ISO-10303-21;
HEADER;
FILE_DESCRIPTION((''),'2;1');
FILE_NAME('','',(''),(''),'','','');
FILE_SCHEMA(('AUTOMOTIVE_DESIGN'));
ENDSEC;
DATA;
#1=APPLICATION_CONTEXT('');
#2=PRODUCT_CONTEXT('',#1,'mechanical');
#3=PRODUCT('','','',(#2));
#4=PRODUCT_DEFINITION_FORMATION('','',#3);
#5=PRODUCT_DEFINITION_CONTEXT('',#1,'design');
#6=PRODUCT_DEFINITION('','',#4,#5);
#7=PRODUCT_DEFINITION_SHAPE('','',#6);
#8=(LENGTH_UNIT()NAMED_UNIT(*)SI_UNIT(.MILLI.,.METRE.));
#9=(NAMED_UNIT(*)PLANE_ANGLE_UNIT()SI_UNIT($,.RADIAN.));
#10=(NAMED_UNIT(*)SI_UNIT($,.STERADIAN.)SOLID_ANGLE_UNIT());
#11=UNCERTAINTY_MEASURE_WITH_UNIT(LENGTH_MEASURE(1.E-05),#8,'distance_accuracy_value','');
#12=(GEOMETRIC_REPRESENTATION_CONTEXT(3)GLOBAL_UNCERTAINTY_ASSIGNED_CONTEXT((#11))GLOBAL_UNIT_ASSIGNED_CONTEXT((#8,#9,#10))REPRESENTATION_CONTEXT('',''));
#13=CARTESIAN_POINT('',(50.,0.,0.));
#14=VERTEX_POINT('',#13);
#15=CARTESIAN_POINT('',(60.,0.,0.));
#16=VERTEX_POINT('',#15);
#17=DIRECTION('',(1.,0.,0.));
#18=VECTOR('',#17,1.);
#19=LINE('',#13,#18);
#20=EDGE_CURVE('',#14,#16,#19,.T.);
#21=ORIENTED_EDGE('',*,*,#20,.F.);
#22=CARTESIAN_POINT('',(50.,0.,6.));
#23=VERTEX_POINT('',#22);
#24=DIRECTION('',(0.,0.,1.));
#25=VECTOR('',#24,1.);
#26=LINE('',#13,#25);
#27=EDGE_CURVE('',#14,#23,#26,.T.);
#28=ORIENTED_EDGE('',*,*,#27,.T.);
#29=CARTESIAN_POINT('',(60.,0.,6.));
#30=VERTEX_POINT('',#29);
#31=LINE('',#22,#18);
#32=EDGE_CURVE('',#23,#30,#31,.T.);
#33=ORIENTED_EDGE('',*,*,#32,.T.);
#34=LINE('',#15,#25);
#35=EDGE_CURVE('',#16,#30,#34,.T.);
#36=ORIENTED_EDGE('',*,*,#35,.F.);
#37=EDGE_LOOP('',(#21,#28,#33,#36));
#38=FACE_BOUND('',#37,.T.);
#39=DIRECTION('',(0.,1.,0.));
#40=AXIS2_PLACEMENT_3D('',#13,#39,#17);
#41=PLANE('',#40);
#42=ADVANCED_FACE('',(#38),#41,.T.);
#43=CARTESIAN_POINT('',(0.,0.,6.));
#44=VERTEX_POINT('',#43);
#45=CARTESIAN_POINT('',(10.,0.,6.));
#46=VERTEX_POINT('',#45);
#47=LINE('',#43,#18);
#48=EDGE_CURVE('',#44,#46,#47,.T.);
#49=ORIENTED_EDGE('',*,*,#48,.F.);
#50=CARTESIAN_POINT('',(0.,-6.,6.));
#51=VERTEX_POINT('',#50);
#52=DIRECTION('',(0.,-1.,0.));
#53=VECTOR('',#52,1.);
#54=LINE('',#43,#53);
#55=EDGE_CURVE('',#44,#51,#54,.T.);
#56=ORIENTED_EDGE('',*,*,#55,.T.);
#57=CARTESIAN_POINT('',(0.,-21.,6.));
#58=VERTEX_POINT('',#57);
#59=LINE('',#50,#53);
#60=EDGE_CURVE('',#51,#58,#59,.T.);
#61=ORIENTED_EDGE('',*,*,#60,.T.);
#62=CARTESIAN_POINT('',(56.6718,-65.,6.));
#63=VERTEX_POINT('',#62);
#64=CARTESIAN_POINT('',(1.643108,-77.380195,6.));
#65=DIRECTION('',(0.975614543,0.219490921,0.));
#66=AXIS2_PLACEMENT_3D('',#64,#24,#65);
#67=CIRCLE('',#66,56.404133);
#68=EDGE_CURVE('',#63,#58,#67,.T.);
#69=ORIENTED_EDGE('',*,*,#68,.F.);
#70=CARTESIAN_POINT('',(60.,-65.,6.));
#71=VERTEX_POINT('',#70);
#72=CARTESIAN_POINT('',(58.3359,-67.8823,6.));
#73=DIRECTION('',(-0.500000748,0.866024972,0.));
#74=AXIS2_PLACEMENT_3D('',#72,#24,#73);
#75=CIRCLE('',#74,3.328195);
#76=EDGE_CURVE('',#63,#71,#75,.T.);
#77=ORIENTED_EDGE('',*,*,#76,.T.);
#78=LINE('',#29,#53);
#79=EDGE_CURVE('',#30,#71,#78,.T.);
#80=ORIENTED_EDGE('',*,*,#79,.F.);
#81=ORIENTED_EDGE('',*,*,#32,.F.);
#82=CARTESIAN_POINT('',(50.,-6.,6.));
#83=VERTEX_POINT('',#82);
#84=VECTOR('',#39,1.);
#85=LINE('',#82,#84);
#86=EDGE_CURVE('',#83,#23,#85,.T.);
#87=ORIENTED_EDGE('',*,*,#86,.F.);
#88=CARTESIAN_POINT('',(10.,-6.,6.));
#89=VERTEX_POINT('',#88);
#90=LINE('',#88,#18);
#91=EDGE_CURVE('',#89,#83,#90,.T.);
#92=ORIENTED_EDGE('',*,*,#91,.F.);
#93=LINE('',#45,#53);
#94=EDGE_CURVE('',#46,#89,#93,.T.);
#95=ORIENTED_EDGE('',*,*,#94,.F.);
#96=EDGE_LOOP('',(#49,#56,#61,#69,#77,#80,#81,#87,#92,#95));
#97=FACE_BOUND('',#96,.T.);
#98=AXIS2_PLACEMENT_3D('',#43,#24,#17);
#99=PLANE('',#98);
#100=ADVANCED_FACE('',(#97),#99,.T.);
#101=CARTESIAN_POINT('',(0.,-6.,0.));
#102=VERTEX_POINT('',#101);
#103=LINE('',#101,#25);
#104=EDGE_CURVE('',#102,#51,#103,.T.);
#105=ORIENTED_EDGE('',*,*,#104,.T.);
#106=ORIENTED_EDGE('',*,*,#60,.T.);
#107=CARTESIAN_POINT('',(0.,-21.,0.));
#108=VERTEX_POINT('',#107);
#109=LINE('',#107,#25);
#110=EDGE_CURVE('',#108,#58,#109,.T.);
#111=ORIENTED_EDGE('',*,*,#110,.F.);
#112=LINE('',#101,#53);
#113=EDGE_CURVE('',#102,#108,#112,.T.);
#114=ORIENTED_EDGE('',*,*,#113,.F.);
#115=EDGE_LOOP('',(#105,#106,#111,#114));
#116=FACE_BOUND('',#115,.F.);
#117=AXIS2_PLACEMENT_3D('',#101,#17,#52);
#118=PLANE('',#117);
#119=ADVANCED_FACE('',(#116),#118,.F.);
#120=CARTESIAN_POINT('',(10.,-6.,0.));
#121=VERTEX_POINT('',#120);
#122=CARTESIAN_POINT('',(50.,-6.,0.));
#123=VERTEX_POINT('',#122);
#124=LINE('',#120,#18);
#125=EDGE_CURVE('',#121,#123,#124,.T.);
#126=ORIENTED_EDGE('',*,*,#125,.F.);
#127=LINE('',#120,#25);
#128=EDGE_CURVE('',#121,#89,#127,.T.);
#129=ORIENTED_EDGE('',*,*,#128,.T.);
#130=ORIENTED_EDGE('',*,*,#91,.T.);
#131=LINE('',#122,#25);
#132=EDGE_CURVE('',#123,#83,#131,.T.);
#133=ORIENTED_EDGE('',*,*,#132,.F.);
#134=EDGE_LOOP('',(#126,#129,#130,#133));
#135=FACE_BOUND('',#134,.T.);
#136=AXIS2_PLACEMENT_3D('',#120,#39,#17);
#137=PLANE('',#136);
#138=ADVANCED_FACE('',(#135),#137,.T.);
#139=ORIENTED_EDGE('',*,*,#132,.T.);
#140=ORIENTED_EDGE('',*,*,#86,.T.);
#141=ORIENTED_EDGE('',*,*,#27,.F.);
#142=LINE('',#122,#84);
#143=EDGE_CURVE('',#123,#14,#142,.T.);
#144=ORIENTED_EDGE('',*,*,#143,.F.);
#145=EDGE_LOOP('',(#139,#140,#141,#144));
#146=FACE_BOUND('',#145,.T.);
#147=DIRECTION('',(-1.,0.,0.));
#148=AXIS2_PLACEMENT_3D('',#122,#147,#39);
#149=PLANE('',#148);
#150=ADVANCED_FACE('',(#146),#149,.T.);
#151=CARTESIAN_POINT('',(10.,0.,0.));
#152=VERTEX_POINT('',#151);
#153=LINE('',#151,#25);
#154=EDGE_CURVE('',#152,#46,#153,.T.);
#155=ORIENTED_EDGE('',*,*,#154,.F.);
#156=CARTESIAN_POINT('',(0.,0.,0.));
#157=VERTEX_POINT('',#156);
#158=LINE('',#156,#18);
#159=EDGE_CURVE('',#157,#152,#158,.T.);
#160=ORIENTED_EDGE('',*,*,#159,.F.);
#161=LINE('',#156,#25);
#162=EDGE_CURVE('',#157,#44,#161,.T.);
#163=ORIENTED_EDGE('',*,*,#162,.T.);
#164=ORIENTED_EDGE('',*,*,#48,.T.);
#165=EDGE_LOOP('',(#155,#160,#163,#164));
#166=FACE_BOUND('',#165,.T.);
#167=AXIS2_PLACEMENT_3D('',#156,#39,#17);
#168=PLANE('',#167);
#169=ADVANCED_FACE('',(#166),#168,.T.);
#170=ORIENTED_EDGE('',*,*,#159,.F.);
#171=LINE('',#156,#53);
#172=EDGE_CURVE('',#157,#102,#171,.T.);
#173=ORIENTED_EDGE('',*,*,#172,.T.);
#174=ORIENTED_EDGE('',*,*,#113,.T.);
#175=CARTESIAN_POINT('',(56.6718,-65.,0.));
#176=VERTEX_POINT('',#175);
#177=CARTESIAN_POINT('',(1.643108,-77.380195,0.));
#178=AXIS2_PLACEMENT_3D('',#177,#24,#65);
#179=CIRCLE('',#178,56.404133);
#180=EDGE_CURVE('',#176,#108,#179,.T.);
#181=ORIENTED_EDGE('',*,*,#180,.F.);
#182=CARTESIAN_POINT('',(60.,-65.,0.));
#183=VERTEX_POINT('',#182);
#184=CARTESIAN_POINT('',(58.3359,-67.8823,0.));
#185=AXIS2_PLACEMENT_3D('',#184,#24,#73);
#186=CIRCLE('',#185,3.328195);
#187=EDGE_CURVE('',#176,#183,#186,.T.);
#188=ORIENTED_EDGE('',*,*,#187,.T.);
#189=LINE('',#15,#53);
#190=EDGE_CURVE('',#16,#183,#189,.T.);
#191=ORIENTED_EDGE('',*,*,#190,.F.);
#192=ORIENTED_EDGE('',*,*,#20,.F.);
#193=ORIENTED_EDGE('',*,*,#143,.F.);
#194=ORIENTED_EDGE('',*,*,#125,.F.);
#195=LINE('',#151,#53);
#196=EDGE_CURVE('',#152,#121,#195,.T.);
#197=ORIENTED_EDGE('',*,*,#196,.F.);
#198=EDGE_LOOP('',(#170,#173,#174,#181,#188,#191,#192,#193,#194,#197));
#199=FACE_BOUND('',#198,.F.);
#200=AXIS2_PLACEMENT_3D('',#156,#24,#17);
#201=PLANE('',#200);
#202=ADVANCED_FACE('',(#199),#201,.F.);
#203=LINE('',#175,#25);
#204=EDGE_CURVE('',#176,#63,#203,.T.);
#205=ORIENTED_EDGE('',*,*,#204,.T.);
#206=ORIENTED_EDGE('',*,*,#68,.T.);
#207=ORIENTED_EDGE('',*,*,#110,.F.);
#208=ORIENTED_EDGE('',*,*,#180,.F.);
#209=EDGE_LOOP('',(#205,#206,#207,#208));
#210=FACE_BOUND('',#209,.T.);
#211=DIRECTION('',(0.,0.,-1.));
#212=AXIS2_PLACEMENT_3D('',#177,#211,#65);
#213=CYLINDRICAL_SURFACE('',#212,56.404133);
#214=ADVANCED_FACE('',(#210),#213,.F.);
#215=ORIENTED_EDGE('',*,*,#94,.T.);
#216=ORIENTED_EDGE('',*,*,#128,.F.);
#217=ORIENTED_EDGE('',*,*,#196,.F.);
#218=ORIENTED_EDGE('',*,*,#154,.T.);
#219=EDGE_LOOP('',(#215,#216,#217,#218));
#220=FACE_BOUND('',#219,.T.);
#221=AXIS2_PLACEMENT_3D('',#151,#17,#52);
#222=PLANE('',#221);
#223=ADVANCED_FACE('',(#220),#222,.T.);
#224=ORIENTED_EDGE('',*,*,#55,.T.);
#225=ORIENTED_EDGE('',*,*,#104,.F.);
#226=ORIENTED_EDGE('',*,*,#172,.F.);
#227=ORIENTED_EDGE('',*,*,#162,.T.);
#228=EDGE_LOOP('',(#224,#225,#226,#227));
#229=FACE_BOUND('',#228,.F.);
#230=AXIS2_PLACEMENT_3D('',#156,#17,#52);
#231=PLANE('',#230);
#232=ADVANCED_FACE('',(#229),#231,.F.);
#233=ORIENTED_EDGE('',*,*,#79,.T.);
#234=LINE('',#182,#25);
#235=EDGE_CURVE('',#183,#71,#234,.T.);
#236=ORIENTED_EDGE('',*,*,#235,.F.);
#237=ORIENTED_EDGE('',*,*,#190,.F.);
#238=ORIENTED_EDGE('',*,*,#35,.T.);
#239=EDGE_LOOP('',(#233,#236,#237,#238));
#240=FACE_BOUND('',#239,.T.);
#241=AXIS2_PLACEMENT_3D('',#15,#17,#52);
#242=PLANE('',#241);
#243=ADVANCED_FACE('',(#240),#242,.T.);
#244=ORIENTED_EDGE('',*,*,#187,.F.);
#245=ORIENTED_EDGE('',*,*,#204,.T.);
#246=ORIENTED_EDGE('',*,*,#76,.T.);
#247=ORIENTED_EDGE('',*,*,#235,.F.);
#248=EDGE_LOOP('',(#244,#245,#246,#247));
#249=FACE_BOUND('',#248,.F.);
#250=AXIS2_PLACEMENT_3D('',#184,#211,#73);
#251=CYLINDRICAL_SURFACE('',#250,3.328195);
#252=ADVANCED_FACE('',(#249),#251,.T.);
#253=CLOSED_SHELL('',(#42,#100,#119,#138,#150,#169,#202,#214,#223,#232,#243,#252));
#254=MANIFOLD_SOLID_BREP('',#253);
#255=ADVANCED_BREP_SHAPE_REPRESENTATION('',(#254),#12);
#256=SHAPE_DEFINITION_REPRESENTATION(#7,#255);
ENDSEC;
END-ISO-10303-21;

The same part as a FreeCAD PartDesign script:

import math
import FreeCAD as App
import Part
import Sketcher
Q = App.Units.Quantity

doc = App.newDocument("Part")
body = doc.addObject("PartDesign::Body", "Body")

# Sketch on XY plane
sketch1 = doc.addObject("Sketcher::SketchObject", "Sketch")
body.addObject(sketch1)
sketch1.AttachmentSupport = (doc.XY_Plane, [""])
sketch1.MapMode = "FlatFace"
sketch1.addGeometry([
    Part.LineSegment(App.Vector(60, -65, 0), App.Vector(60, 0, 0)),  # 0
    Part.LineSegment(App.Vector(60, 0, 0), App.Vector(50, 0, 0)),  # 1
    Part.LineSegment(App.Vector(50, 0, 0), App.Vector(50, -6, 0)),  # 2
    Part.LineSegment(App.Vector(50, -6, 0), App.Vector(10, -6, 0)),  # 3
    Part.LineSegment(App.Vector(10, -6, 0), App.Vector(10, 0, 0)),  # 4
    Part.LineSegment(App.Vector(10, 0, 0), App.Vector(0, 0, 0)),  # 5
    Part.LineSegment(App.Vector(0, 0, 0), App.Vector(0, -21, 0)),  # 6
    Part.ArcOfCircle(Part.Circle(App.Vector(1.6431, -77.3802, 0), App.Vector(0, 0, 1), 56.404141), math.radians(12.679137), math.radians(91.66931)),  # 7
    Part.ArcOfCircle(Part.Circle(App.Vector(58.3359, -67.8823, 0), App.Vector(0, 0, 1), 3.328195), math.radians(120.000049), math.radians(419.999951)),  # 8
], False)
sketch1.addConstraint([
    Sketcher.Constraint("Coincident", 0, 2, 1, 1),
    Sketcher.Constraint("Coincident", 1, 2, 2, 1),
    Sketcher.Constraint("Coincident", 2, 2, 3, 1),
    Sketcher.Constraint("Coincident", 3, 2, 4, 1),
    Sketcher.Constraint("Coincident", 4, 2, 5, 1),
    Sketcher.Constraint("Coincident", 5, 2, 6, 1),
    Sketcher.Constraint("Coincident", 6, 2, 7, 2),
    Sketcher.Constraint("Coincident", 7, 1, 8, 1),
    Sketcher.Constraint("Coincident", 8, 2, 0, 1),
    Sketcher.Constraint("Vertical", 0),
    Sketcher.Constraint("Horizontal", 1),
    Sketcher.Constraint("Vertical", 2),
    Sketcher.Constraint("Horizontal", 3),
    Sketcher.Constraint("Vertical", 4),
    Sketcher.Constraint("Horizontal", 5),
    Sketcher.Constraint("Vertical", 6),
    Sketcher.Constraint("Coincident", 5, 2, -1, 1),
    Sketcher.Constraint("PointOnObject", 0, 2, -1),
    Sketcher.Constraint("Horizontal", 7, 1, 8, 2),
    Sketcher.Constraint("Equal", 1, 5),
    Sketcher.Constraint("DistanceX", 1, 2, 1, 1, Q("10 mm")),
    Sketcher.Constraint("DistanceY", 0, 1, 0, 2, Q("65 mm")),
    Sketcher.Constraint("DistanceY", 2, 2, 2, 1, Q("6 mm")),
    Sketcher.Constraint("DistanceX", -1, 1, 0, 2, Q("60 mm")),
    Sketcher.Constraint("DistanceY", 6, 2, 3, 2, Q("15 mm")),
    Sketcher.Constraint("Radius", 7, Q("56.4041 mm")),
    Sketcher.Constraint("Radius", 8, Q("3.3282 mm")),
    Sketcher.Constraint("DistanceX", -1, 1, 7, 3, Q("1.643 mm")),
])
pad1 = doc.addObject("PartDesign::Pad", "Pad")
body.addObject(pad1)
pad1.Profile = sketch1
pad1.Length = 6

doc.recompute()
